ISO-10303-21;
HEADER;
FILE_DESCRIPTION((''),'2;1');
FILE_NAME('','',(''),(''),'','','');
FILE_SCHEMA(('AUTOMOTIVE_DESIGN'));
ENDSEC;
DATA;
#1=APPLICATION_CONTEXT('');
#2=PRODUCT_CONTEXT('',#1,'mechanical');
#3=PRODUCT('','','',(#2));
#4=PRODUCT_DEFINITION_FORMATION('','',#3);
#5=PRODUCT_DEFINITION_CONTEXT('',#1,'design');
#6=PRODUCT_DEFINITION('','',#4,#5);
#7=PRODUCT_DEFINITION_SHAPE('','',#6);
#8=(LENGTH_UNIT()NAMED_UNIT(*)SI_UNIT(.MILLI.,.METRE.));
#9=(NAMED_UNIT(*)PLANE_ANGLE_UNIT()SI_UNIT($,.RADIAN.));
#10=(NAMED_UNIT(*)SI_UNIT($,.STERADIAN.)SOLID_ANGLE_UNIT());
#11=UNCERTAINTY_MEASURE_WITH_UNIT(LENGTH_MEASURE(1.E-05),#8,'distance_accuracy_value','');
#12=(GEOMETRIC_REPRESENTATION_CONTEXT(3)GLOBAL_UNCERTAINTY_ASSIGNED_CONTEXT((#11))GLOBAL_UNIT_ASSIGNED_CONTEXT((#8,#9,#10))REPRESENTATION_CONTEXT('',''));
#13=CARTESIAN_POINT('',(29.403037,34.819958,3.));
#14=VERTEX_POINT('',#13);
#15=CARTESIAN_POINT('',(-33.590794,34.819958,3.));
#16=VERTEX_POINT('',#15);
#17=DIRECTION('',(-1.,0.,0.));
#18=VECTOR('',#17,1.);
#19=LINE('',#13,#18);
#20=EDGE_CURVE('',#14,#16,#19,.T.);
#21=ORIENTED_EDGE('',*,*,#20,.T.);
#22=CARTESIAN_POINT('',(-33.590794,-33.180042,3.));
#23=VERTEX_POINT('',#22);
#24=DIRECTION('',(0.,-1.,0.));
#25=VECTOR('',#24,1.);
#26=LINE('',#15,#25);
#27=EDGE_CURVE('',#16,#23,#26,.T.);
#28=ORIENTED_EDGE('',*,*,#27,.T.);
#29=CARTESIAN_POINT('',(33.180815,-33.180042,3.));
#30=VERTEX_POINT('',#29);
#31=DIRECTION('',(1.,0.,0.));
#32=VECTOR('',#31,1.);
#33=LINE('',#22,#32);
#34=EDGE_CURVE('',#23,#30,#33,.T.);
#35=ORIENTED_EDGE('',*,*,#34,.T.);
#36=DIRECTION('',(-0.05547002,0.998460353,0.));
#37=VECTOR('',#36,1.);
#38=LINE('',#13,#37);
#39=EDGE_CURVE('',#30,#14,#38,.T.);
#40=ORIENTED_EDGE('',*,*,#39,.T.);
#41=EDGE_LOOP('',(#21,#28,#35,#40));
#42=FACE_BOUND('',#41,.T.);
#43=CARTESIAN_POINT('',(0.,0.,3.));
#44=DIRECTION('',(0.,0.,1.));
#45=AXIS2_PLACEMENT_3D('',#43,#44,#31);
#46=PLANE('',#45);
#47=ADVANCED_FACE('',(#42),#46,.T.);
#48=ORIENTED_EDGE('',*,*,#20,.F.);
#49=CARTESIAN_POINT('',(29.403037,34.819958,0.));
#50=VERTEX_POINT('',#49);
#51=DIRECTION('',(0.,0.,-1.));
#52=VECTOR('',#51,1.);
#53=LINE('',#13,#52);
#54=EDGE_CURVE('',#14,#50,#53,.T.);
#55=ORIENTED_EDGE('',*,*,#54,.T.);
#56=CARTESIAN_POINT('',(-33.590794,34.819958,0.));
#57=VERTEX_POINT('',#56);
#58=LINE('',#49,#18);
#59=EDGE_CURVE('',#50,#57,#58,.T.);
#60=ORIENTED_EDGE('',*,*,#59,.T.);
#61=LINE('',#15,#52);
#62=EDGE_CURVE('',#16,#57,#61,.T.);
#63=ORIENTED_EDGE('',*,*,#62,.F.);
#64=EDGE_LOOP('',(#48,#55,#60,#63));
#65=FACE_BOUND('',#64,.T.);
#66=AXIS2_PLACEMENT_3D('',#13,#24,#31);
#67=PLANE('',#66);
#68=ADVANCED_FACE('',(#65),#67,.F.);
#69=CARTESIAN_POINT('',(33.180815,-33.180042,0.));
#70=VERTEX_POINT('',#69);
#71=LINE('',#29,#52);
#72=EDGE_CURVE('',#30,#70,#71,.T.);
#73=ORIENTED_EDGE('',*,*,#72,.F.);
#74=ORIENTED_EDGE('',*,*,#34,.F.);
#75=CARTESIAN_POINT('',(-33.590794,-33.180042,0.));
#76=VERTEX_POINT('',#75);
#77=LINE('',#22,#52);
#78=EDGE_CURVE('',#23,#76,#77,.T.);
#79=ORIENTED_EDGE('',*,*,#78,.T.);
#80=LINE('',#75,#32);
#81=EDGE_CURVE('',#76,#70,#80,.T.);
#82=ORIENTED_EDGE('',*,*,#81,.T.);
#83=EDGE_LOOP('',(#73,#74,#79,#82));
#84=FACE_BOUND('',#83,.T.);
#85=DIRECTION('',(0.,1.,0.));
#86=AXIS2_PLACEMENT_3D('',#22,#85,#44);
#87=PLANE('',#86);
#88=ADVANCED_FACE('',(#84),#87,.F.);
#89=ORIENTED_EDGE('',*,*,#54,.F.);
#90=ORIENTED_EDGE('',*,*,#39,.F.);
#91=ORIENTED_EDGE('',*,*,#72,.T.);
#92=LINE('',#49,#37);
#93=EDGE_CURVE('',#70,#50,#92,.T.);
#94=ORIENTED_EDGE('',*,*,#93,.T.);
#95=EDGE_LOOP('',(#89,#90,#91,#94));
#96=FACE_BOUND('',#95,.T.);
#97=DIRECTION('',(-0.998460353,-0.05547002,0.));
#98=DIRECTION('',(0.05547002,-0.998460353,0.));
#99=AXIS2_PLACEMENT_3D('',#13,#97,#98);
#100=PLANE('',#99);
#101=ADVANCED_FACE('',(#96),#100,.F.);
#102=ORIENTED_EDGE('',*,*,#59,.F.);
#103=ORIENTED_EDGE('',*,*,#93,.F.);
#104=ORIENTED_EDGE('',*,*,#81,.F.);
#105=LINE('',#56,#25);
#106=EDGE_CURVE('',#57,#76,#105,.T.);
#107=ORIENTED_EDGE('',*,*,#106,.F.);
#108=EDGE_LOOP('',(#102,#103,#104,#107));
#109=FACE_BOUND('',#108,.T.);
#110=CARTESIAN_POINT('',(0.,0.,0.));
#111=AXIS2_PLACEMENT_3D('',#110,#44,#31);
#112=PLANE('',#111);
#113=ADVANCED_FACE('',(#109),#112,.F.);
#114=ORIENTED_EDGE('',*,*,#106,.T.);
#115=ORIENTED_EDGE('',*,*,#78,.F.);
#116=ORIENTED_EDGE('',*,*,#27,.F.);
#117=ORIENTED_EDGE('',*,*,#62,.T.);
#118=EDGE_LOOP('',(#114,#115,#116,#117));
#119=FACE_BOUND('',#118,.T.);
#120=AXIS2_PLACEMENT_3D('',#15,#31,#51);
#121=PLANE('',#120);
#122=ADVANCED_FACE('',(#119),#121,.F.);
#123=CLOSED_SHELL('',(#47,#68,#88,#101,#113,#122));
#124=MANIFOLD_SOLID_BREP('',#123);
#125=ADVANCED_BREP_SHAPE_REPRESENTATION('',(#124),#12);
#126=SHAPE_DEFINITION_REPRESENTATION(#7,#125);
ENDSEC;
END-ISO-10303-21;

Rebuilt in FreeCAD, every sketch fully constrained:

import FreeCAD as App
import Part
import Sketcher
Q = App.Units.Quantity


def add_polygon(sketch, points):
    """Adds a closed chain of lines whose ends are joined by coincident constraints."""
    first, n = sketch.GeometryCount, len(points)
    for a, b in zip(points, points[1:] + points[:1]):
        sketch.addGeometry(Part.LineSegment(App.Vector(*a, 0), App.Vector(*b, 0)), False)
    for i in range(n):
        sketch.addConstraint(Sketcher.Constraint("Coincident", first + i, 2, first + (i + 1) % n, 1))

doc = App.newDocument("Part")
body = doc.addObject("PartDesign::Body", "Body")

# Sketch on XY plane
sketch1 = body.newObject("Sketcher::SketchObject", "Sketch")
sketch1.AttachmentSupport = (doc.getObject("XY_Plane"), [""])
sketch1.MapMode = "FlatFace"
add_polygon(sketch1, [(-34, -33), (33, -33), (29, 35), (-34, 35)])  # lines 0-3
sketch1.addConstraint([
    Sketcher.Constraint("Horizontal", 0),
    Sketcher.Constraint("Horizontal", 2),
    Sketcher.Constraint("Vertical", 3),
    Sketcher.Constraint("DistanceY", 3, 2, 3, 1, Q("68 mm")),
    Sketcher.Constraint("DistanceX", 0, 1, 0, 2, Q("66.77161 mm")),
    Sketcher.Constraint("DistanceX", 2, 2, 2, 1, Q("62.993832 mm")),
    Sketcher.Constraint("DistanceY", 0, 2, -1, 1, Q("33.180042 mm")),
    Sketcher.Constraint("DistanceX", -1, 1, 0, 2, Q("33.180815 mm")),
])
pad1 = body.newObject("PartDesign::Pad", "Pad")
pad1.Profile = sketch1
pad1.Length = 3

doc.recompute()
